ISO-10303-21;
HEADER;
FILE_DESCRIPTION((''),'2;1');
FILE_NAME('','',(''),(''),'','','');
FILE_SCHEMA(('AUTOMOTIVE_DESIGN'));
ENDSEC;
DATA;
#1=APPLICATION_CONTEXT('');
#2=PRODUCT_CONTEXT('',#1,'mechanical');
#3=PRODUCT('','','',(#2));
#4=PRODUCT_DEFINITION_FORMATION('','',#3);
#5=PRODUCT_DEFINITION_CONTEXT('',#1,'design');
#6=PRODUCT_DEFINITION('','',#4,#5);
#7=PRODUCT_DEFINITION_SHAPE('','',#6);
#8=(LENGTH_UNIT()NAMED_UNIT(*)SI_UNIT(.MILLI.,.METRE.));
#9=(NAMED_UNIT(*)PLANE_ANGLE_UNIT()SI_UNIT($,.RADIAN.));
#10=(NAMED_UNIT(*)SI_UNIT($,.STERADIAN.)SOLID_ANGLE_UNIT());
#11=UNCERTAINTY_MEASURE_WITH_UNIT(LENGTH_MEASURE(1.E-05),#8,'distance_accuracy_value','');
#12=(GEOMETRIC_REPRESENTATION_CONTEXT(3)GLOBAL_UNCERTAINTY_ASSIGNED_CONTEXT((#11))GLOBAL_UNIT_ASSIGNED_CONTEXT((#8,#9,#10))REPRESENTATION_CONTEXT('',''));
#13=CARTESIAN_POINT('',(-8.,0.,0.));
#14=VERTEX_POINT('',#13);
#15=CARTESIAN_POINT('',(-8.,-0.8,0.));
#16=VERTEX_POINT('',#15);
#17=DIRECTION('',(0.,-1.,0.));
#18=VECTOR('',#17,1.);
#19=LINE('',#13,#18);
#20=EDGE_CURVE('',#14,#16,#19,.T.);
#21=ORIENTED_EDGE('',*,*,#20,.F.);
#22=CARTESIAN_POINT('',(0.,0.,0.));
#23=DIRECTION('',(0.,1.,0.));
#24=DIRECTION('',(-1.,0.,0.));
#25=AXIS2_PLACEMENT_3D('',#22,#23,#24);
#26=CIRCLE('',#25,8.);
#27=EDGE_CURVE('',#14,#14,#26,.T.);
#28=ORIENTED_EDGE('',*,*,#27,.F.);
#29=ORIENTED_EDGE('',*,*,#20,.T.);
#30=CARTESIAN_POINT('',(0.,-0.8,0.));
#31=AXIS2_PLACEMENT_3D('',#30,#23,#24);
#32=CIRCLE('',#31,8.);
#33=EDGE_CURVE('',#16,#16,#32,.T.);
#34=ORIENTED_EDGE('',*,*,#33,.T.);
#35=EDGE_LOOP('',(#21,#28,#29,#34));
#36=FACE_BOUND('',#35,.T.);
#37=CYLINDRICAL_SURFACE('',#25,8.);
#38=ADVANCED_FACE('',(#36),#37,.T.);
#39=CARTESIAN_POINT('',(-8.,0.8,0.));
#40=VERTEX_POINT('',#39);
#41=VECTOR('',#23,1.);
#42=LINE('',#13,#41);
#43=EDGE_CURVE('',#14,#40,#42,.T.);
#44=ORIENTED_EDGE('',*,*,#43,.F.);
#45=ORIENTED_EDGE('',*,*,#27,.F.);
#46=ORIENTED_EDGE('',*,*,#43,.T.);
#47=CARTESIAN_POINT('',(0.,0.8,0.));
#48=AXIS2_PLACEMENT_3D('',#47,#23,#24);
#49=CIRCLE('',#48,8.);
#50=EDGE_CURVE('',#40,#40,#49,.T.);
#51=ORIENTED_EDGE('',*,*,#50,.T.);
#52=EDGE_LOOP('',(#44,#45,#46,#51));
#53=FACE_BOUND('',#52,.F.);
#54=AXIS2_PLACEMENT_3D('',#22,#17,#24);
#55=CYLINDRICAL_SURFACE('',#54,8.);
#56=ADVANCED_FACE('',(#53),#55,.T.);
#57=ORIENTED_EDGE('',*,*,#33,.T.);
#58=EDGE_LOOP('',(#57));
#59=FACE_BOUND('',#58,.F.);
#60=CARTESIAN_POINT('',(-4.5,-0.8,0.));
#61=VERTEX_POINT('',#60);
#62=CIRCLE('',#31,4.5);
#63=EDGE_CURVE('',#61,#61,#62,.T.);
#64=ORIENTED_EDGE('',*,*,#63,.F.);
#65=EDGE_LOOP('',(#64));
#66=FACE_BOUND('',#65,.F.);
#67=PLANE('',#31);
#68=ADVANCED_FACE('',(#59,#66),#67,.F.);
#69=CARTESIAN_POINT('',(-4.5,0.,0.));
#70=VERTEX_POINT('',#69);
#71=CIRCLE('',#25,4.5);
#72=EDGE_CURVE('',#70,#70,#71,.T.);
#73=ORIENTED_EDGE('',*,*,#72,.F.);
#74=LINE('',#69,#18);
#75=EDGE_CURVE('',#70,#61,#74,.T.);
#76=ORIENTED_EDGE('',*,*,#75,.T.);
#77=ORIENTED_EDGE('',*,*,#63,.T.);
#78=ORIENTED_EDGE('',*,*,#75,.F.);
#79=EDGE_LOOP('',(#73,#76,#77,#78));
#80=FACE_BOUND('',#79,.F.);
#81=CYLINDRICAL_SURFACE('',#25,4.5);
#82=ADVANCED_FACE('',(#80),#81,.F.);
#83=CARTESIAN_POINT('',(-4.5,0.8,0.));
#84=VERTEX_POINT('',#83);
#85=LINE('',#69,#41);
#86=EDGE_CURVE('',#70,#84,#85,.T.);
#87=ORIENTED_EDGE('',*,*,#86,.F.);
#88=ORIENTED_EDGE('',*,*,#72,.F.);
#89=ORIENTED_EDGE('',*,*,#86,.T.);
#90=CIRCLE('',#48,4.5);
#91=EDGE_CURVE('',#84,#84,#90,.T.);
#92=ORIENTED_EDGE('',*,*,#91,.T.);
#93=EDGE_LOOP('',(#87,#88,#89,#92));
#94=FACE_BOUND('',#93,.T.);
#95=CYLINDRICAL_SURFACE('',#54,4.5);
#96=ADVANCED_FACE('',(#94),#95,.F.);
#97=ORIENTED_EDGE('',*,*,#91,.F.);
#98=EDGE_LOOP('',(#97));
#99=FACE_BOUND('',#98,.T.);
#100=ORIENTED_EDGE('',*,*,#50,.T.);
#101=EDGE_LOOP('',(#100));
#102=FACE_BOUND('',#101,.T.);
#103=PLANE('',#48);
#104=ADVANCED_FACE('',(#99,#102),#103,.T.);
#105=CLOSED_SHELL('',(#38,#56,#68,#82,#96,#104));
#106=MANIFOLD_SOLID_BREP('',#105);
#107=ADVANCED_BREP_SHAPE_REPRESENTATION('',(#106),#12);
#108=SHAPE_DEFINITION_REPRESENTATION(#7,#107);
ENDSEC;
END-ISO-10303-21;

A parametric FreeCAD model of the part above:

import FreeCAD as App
import Part
import Sketcher
from FreeCAD import Vector

doc = App.newDocument("Part")
body = doc.addObject("PartDesign::Body", "Body")

sketch1 = body.newObject("Sketcher::SketchObject", "Sketch")
sketch1.AttachmentSupport = (doc.getObject("XZ_Plane"), [""])
sketch1.MapMode = "FlatFace"
sketch1.addGeometry([
    Part.Circle(Vector(0, 0, 0), Vector(0, 0, 1), 8),
    Part.Circle(Vector(0, 0, 0), Vector(0, 0, 1), 4.5),
], False)
sketch1.addConstraint([
    Sketcher.Constraint("Coincident", 0, 3, -1, 1),
    Sketcher.Constraint("Coincident", 1, 3, -1, 1),
    Sketcher.Constraint("Diameter", 0, 16.0),
    Sketcher.Constraint("Diameter", 1, 9.0),
])
pad1 = body.newObject("PartDesign::Pad", "Pad")
pad1.Profile = sketch1
pad1.Length = 1.6
pad1.Midplane = True

doc.recompute()
